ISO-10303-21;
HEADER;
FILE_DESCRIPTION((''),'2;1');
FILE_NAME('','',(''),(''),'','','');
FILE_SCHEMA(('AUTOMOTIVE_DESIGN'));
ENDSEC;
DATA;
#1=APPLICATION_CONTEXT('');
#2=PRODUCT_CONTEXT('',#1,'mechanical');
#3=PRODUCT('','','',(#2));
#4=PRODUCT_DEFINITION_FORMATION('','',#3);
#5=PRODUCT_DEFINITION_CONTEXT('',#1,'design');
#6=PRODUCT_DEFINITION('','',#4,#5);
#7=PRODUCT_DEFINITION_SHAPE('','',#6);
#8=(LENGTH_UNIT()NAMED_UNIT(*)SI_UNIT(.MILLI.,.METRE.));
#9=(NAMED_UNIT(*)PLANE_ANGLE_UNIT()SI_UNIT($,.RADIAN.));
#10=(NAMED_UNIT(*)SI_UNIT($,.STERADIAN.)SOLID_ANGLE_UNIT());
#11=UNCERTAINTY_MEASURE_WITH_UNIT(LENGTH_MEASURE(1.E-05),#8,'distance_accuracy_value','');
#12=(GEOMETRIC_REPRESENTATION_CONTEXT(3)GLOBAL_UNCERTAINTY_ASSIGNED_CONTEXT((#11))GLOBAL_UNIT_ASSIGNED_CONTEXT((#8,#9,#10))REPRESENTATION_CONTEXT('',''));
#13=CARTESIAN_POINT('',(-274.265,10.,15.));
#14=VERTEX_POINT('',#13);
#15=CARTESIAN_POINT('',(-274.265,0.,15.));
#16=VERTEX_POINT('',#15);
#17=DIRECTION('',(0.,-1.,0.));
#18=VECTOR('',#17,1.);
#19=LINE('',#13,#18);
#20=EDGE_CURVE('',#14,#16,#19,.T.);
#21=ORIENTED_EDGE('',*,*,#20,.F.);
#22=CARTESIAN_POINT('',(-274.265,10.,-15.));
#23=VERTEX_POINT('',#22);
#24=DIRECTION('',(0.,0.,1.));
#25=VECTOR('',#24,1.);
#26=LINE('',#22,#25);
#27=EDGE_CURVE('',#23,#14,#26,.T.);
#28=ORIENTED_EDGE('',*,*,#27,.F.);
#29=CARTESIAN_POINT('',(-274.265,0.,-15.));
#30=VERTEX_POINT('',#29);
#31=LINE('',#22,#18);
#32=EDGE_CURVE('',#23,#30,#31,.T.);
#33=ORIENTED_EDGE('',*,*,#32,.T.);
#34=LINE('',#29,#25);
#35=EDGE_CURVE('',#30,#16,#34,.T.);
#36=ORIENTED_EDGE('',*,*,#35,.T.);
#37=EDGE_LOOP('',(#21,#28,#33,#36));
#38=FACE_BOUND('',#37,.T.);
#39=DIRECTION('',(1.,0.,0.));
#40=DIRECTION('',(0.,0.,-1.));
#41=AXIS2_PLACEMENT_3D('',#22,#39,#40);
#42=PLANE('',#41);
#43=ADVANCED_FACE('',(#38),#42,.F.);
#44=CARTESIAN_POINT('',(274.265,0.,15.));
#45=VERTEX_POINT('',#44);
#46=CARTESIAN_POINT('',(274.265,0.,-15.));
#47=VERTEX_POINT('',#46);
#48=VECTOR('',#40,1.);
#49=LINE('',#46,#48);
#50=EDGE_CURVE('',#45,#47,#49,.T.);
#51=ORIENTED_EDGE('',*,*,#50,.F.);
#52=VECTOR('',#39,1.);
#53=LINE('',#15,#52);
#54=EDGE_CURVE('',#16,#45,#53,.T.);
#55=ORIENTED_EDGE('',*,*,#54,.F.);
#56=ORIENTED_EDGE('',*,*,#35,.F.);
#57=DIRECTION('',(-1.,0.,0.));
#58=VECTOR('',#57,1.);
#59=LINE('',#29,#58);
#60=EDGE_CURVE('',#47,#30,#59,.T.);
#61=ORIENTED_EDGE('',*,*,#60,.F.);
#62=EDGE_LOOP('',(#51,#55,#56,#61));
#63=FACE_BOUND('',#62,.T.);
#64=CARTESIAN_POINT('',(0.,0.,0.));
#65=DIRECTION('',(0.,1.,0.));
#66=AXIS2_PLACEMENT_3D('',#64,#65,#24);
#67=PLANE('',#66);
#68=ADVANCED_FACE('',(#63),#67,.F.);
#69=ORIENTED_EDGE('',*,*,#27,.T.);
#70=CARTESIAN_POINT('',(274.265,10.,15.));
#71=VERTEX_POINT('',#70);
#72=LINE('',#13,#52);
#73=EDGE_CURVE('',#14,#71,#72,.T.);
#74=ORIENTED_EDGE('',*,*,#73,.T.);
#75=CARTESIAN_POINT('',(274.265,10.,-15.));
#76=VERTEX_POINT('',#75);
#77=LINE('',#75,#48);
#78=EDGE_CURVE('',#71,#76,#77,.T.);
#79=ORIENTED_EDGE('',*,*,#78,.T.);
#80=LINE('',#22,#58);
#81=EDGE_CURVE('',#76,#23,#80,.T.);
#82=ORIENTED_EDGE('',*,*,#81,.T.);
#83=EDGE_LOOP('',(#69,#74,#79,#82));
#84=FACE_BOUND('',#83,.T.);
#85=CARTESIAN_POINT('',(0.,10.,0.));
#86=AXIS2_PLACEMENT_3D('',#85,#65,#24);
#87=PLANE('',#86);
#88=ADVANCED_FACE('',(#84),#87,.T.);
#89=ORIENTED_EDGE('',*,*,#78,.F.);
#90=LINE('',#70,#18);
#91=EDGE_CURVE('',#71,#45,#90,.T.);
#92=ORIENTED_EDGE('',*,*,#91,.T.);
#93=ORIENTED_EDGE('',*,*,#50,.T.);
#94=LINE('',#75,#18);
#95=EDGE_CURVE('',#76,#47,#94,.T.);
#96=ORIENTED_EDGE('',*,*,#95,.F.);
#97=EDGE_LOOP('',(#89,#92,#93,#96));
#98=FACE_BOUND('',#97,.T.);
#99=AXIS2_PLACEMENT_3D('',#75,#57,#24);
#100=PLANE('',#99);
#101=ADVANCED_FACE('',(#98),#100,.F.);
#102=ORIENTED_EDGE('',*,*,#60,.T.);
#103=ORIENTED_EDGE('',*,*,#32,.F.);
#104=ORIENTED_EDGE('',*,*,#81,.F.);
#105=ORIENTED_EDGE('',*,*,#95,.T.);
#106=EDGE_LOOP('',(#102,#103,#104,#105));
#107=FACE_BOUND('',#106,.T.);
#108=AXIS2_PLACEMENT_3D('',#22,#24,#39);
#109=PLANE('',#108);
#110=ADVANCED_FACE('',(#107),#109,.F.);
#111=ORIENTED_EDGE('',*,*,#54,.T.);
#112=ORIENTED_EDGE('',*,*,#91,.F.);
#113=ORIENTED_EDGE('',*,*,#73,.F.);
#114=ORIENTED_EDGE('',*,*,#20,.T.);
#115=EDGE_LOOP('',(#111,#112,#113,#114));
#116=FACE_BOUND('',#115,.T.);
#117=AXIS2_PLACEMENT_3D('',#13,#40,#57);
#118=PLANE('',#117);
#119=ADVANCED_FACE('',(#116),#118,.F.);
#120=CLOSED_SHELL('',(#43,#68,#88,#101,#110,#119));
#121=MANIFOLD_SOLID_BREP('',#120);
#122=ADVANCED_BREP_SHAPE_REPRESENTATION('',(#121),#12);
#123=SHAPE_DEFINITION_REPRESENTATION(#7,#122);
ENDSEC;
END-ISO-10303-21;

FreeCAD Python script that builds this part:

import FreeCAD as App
import Part
import Sketcher
from FreeCAD import Vector
Q = App.Units.Quantity


def add_polygon(sketch, points):
    """Adds a closed chain of lines whose ends are joined by coincident constraints."""
    first, n = sketch.GeometryCount, len(points)
    for a, b in zip(points, points[1:] + points[:1]):
        sketch.addGeometry(Part.LineSegment(App.Vector(*a, 0), App.Vector(*b, 0)), False)
    for i in range(n):
        sketch.addConstraint(Sketcher.Constraint("Coincident", first + i, 2, first + (i + 1) % n, 1))

doc = App.newDocument("Part")
params = doc.addObject("Spreadsheet::Sheet", "Params")
for row, (alias, value) in enumerate([
    ("sketch1_height", "30 mm"),
    ("sketch1_width", "548.53 mm"),
    ("pad1_length", "10 mm"),
], start=1):
    params.set(f"A{row}", alias)
    params.set(f"B{row}", "=" + value)
    params.setAlias(f"B{row}", alias)

body = doc.addObject("PartDesign::Body", "Body")

# Sketch on XZ plane
sketch1 = body.newObject("Sketcher::SketchObject", "Sketch")
sketch1.AttachmentSupport = (doc.getObject("XZ_Plane"), [""])
sketch1.MapMode = "FlatFace"
add_polygon(sketch1, [(-274.265, -15), (-274.265, 15), (274.265, 15), (274.265, -15)])  # lines 0-3
sketch1.addConstraint([
    Sketcher.Constraint("Vertical", 0),
    Sketcher.Constraint("Horizontal", 1),
    Sketcher.Constraint("Vertical", 2),
    Sketcher.Constraint("Horizontal", 3),
    Sketcher.Constraint("Symmetric", 0, 2, 2, 2, -1, 1),
    Sketcher.Constraint("DistanceY", 0, 1, 0, 2, Q("30 mm")),
    Sketcher.Constraint("DistanceX", 1, 1, 1, 2, Q("548.53 mm")),
])
sketch1.setExpression("Constraints[9]", "Params.sketch1_height")
sketch1.setExpression("Constraints[10]", "Params.sketch1_width")
pad1 = body.newObject("PartDesign::Pad", "Pad")
pad1.Profile = sketch1
pad1.setExpression("Length", "Params.pad1_length")
pad1.Reversed = True

doc.recompute()
